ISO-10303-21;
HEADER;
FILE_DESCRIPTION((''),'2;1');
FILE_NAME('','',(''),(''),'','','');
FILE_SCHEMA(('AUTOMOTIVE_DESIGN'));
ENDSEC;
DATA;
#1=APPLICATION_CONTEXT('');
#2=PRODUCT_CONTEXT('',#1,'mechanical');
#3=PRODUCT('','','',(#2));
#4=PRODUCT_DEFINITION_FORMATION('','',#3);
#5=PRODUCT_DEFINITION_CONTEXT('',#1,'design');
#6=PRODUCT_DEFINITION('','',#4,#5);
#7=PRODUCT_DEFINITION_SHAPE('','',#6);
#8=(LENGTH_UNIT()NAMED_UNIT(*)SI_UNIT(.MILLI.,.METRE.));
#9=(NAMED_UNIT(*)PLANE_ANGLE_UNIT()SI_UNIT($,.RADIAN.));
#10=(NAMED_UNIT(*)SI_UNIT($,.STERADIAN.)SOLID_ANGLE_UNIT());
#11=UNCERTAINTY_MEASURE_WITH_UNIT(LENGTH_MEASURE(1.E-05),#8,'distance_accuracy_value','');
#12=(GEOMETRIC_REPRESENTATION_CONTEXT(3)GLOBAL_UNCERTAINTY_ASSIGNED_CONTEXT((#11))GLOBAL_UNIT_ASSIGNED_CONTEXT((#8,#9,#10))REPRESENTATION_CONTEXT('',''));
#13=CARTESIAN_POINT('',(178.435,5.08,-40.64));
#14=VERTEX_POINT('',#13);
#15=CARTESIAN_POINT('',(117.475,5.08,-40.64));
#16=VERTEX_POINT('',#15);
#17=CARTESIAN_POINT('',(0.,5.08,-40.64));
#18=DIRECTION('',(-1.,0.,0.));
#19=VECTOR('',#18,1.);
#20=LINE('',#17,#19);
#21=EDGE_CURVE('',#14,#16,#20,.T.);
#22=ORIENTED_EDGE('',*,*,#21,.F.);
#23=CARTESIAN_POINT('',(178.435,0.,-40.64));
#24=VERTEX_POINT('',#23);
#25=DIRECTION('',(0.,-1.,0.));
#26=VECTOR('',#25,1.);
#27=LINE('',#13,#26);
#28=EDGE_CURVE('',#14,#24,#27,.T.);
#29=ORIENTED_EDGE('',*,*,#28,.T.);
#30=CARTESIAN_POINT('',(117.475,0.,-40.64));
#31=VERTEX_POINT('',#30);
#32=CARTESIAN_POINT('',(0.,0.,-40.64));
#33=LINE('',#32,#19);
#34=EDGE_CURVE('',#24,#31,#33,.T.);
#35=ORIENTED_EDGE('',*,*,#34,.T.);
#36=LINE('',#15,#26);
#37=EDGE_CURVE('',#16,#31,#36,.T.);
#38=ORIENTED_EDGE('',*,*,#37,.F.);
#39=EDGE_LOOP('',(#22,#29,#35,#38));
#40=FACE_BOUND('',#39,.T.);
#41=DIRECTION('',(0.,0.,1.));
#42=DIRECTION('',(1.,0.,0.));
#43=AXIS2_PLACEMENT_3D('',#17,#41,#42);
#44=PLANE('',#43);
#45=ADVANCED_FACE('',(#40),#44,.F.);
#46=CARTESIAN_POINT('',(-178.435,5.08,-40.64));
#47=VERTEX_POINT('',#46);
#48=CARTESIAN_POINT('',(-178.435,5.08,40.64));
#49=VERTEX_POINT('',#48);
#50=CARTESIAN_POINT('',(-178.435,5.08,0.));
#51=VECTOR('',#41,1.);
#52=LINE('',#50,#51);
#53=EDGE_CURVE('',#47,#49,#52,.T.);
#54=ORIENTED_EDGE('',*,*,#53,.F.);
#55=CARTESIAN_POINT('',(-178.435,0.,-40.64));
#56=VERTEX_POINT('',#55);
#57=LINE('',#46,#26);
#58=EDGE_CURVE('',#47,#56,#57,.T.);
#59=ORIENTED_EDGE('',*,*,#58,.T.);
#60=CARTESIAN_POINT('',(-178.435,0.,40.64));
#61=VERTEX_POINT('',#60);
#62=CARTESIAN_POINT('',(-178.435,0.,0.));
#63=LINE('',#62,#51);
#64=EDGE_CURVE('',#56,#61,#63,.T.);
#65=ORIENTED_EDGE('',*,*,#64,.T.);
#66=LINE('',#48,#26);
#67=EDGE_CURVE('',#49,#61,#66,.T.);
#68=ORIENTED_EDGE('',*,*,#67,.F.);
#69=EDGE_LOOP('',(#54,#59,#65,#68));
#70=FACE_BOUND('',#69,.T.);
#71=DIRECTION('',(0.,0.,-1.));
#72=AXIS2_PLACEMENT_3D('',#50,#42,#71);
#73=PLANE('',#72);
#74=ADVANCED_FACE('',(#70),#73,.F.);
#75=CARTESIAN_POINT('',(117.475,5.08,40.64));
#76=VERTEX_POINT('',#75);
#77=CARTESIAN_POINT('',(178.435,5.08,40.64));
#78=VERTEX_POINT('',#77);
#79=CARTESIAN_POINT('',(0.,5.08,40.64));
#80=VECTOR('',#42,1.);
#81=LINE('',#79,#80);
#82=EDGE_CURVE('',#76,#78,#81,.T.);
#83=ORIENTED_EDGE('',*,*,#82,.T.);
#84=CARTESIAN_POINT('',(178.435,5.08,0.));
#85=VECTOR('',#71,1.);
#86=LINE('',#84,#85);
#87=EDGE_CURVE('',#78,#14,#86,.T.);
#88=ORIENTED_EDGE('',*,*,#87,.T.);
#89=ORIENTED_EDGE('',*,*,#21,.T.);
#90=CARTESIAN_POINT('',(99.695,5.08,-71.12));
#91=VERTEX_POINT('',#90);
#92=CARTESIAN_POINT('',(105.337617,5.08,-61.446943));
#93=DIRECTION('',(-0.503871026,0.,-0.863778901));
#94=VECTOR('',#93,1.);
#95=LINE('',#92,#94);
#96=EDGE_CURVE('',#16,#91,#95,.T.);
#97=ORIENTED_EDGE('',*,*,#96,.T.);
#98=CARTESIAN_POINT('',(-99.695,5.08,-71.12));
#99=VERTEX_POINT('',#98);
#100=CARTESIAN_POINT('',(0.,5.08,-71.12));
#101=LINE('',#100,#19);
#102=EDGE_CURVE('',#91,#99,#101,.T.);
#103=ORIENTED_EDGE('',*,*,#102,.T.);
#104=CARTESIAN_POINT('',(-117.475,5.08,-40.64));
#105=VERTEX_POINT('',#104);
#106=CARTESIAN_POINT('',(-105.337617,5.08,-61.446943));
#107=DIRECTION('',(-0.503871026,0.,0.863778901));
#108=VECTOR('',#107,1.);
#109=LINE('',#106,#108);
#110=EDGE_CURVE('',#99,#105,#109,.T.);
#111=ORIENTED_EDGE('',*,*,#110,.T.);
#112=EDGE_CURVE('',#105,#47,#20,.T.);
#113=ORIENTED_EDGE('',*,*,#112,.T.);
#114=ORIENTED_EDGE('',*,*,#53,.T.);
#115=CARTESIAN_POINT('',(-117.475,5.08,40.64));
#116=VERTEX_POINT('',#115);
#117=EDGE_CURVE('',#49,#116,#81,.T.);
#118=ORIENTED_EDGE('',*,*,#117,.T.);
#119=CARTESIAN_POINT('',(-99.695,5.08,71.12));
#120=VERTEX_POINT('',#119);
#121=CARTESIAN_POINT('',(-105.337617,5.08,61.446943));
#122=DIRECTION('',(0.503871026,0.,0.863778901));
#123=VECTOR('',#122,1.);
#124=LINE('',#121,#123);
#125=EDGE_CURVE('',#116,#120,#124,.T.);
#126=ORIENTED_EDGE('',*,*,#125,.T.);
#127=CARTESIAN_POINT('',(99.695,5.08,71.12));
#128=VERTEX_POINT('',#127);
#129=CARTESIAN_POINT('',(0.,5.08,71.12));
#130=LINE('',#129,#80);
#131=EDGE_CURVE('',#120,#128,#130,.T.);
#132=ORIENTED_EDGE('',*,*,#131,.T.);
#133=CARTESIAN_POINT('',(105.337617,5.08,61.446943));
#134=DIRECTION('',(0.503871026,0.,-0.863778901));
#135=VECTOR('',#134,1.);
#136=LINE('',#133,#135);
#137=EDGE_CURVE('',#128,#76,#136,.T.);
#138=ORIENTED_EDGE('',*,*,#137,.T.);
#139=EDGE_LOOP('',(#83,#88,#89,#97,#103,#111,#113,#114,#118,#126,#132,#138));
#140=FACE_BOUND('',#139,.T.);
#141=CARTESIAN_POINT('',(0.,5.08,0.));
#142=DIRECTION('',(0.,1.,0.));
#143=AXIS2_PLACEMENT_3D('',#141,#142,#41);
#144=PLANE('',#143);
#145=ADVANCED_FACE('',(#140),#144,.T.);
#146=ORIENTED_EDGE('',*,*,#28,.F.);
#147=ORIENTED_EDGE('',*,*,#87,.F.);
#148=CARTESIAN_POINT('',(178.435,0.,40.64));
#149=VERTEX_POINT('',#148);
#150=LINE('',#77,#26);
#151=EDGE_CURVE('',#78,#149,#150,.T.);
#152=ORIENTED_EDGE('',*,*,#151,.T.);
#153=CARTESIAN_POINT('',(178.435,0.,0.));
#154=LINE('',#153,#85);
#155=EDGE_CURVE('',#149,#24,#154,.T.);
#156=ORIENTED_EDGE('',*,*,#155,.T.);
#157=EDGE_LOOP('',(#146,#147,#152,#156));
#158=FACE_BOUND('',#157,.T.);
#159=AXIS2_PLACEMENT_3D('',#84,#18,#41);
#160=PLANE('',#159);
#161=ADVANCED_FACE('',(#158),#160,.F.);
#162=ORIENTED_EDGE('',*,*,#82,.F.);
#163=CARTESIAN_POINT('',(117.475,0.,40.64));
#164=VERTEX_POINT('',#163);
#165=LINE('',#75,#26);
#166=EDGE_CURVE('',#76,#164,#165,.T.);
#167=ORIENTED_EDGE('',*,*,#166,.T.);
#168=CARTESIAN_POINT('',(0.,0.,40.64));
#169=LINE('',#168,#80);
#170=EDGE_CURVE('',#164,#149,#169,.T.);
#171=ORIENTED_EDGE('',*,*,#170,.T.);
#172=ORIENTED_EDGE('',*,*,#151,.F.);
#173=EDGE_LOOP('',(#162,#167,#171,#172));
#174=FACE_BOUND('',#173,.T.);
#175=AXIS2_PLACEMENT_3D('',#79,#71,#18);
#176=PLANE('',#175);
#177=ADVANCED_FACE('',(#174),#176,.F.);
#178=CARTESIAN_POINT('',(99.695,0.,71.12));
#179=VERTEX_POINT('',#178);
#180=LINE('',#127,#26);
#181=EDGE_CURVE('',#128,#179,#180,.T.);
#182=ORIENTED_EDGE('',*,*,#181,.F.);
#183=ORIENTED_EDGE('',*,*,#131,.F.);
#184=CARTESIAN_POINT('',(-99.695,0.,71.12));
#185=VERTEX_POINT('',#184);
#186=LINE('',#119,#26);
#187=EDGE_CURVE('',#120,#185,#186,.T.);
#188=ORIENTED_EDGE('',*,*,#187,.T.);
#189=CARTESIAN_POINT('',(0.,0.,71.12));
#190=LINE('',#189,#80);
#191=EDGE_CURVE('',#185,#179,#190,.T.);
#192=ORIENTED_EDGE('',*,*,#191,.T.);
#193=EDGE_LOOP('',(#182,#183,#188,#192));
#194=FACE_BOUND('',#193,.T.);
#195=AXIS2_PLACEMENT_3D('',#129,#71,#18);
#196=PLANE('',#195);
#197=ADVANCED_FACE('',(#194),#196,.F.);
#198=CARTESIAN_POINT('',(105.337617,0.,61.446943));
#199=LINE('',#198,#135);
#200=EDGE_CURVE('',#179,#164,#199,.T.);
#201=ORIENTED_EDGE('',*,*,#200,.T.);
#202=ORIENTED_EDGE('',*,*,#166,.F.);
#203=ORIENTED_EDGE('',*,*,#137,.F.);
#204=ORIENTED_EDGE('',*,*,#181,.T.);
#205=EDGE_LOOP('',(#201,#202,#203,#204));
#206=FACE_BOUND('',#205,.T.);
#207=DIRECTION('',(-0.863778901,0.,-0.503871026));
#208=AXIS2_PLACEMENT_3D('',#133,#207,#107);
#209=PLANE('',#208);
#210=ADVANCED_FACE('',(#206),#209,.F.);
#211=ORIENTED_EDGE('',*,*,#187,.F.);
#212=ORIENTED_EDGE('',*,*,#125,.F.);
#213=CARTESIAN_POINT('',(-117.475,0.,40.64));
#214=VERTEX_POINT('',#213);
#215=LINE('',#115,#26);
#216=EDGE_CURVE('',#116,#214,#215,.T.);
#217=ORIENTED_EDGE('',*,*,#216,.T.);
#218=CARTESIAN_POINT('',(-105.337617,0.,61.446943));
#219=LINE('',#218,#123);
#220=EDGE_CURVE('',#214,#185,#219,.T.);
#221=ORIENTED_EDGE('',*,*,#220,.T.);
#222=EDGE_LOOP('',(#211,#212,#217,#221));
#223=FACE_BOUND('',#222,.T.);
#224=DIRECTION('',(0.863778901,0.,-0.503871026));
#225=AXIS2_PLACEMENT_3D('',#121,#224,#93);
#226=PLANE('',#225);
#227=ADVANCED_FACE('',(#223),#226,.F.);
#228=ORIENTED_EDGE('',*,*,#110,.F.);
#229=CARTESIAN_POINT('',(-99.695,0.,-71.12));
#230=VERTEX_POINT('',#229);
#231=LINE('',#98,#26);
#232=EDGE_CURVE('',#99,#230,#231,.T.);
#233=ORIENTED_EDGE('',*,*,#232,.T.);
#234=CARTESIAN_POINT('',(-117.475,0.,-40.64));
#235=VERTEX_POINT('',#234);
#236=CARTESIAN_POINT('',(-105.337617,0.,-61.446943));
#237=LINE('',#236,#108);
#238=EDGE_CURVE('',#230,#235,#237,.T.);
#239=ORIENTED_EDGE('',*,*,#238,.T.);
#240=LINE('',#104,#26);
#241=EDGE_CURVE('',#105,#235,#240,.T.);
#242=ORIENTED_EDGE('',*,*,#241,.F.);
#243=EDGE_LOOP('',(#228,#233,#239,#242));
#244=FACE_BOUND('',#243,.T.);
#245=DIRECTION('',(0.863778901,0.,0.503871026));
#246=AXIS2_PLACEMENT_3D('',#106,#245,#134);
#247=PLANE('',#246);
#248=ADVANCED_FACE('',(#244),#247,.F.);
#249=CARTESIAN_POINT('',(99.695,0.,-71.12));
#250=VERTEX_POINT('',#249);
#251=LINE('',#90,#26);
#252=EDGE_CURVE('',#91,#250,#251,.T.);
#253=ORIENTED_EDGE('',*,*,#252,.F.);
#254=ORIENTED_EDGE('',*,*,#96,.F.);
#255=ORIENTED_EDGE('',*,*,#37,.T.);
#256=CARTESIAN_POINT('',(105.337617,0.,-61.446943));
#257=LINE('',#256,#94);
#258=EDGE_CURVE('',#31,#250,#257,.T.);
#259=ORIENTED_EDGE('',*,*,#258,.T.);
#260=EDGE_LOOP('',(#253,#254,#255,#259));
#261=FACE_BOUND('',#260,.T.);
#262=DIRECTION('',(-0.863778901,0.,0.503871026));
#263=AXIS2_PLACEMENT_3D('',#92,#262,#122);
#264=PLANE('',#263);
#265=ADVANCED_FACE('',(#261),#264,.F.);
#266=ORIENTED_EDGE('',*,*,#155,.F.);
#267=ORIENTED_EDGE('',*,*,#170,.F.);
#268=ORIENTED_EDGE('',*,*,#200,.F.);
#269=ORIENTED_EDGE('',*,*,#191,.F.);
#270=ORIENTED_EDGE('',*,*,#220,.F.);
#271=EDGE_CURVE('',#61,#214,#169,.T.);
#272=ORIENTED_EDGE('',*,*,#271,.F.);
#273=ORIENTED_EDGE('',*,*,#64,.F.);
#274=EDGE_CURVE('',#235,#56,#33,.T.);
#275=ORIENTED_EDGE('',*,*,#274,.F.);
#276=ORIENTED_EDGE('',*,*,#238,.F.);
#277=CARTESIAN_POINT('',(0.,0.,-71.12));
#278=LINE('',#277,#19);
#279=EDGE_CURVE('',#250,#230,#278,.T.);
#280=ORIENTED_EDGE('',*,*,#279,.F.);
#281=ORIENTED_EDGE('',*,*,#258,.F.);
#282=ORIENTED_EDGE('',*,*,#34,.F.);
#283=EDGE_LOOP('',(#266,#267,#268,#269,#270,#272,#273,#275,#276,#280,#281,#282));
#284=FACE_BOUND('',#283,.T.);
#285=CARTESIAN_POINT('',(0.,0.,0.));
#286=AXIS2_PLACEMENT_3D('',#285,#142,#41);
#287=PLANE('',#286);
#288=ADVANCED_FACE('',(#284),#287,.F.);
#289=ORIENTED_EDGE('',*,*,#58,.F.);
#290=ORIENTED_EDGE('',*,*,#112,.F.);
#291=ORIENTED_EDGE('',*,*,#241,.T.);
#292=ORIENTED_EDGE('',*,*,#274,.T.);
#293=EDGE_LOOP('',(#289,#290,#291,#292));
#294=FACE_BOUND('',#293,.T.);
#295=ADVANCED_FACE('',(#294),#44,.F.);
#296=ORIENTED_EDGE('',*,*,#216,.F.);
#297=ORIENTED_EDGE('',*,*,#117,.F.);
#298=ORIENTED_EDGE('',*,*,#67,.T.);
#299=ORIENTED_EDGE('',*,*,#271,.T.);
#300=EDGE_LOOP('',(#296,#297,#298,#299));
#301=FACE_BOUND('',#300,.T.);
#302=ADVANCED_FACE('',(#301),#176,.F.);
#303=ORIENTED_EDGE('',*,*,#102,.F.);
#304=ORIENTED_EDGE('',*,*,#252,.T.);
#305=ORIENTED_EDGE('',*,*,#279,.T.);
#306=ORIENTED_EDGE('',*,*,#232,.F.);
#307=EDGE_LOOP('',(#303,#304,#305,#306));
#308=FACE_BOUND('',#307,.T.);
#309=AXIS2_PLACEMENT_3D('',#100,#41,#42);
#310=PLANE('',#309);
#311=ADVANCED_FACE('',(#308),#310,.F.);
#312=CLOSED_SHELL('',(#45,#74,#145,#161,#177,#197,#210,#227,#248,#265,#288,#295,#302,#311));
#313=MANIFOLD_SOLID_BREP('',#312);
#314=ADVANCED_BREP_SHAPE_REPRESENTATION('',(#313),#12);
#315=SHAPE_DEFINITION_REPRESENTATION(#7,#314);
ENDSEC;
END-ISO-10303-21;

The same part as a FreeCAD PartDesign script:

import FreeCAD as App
import Part
import Sketcher

V = App.Vector
Q = App.Units.Quantity

doc = App.newDocument("Part")
params = doc.addObject("Spreadsheet::Sheet", "Params")
for row, (alias, value) in enumerate([
    ("sketch1_width", "2.4 in"),
    ("sketch1_height", "3.2 in"),
    ("sketch1_width2", "7.85 in"),
    ("pad1_length", "0.2 in"),
], start=1):
    params.set(f"A{row}", alias)
    params.set(f"B{row}", "=" + value)
    params.setAlias(f"B{row}", alias)

body = doc.addObject("PartDesign::Body", "Body")

sketch1 = body.newObject("Sketcher::SketchObject", "Sketch")
sketch1.AttachmentSupport = (doc.getObject("XZ_Plane"), [""])
sketch1.MapMode = "FlatFace"
sketch1.addGeometry([
    Part.LineSegment(V(178, -41, 0), V(117, -41, 0)),
    Part.LineSegment(V(117, -41, 0), V(100, -71, 0)),
    Part.LineSegment(V(100, -71, 0), V(-100, -71, 0)),
    Part.LineSegment(V(-100, -71, 0), V(-117, -41, 0)),
    Part.LineSegment(V(-117, -41, 0), V(-178, -41, 0)),
    Part.LineSegment(V(-178, -41, 0), V(-178, 41, 0)),
    Part.LineSegment(V(-178, 41, 0), V(-117, 41, 0)),
    Part.LineSegment(V(-117, 41, 0), V(-100, 71, 0)),
    Part.LineSegment(V(-100, 71, 0), V(100, 71, 0)),
    Part.LineSegment(V(100, 71, 0), V(117, 41, 0)),
    Part.LineSegment(V(117, 41, 0), V(178, 41, 0)),
    Part.LineSegment(V(178, 41, 0), V(178, -41, 0)),
], False)
sketch1.addConstraint([
    Sketcher.Constraint("Coincident", 0, 2, 1, 1),
    Sketcher.Constraint("Coincident", 1, 2, 2, 1),
    Sketcher.Constraint("Coincident", 2, 2, 3, 1),
    Sketcher.Constraint("Coincident", 3, 2, 4, 1),
    Sketcher.Constraint("Coincident", 4, 2, 5, 1),
    Sketcher.Constraint("Coincident", 5, 2, 6, 1),
    Sketcher.Constraint("Coincident", 6, 2, 7, 1),
    Sketcher.Constraint("Coincident", 7, 2, 8, 1),
    Sketcher.Constraint("Coincident", 8, 2, 9, 1),
    Sketcher.Constraint("Coincident", 9, 2, 10, 1),
    Sketcher.Constraint("Coincident", 10, 2, 11, 1),
    Sketcher.Constraint("Coincident", 11, 2, 0, 1),
    Sketcher.Constraint("Horizontal", 0),
    Sketcher.Constraint("Horizontal", 2),
    Sketcher.Constraint("Horizontal", 4),
    Sketcher.Constraint("Vertical", 5),
    Sketcher.Constraint("Horizontal", 6),
    Sketcher.Constraint("Horizontal", 8),
    Sketcher.Constraint("Horizontal", 10),
    Sketcher.Constraint("Vertical", 11),
    Sketcher.Constraint("Symmetric", 0, 2, 6, 2, -1, 1),
    Sketcher.Constraint("Symmetric", 1, 2, 7, 2, -1, 1),
    Sketcher.Constraint("Symmetric", 3, 2, 9, 2, -1, 1),
    Sketcher.Constraint("Symmetric", 0, 2, 3, 2, -2),
    Sketcher.Constraint("Parallel", 3, 9),
    Sketcher.Constraint("Vertical", 2, 2, 7, 2),
    Sketcher.Constraint("Equal", 0, 4),
    Sketcher.Constraint("DistanceX", 0, 2, 0, 1, Q("2.4 in")),
    Sketcher.Constraint("DistanceY", 5, 1, 5, 2, Q("3.2 in")),
    Sketcher.Constraint("DistanceX", 2, 2, 2, 1, Q("7.85 in")),
    Sketcher.Constraint("DistanceY", 1, 2, -1, 1, Q("2.8 in")),
    Sketcher.Constraint("DistanceX", 1, 2, 0, 2, Q("0.7 in")),
])
sketch1.setExpression("Constraints[27]", "Params.sketch1_width")
sketch1.setExpression("Constraints[28]", "Params.sketch1_height")
sketch1.setExpression("Constraints[29]", "Params.sketch1_width2")
pad1 = body.newObject("PartDesign::Pad", "Pad")
pad1.Profile = sketch1
pad1.setExpression("Length", "Params.pad1_length")
pad1.Reversed = True

doc.recompute()
